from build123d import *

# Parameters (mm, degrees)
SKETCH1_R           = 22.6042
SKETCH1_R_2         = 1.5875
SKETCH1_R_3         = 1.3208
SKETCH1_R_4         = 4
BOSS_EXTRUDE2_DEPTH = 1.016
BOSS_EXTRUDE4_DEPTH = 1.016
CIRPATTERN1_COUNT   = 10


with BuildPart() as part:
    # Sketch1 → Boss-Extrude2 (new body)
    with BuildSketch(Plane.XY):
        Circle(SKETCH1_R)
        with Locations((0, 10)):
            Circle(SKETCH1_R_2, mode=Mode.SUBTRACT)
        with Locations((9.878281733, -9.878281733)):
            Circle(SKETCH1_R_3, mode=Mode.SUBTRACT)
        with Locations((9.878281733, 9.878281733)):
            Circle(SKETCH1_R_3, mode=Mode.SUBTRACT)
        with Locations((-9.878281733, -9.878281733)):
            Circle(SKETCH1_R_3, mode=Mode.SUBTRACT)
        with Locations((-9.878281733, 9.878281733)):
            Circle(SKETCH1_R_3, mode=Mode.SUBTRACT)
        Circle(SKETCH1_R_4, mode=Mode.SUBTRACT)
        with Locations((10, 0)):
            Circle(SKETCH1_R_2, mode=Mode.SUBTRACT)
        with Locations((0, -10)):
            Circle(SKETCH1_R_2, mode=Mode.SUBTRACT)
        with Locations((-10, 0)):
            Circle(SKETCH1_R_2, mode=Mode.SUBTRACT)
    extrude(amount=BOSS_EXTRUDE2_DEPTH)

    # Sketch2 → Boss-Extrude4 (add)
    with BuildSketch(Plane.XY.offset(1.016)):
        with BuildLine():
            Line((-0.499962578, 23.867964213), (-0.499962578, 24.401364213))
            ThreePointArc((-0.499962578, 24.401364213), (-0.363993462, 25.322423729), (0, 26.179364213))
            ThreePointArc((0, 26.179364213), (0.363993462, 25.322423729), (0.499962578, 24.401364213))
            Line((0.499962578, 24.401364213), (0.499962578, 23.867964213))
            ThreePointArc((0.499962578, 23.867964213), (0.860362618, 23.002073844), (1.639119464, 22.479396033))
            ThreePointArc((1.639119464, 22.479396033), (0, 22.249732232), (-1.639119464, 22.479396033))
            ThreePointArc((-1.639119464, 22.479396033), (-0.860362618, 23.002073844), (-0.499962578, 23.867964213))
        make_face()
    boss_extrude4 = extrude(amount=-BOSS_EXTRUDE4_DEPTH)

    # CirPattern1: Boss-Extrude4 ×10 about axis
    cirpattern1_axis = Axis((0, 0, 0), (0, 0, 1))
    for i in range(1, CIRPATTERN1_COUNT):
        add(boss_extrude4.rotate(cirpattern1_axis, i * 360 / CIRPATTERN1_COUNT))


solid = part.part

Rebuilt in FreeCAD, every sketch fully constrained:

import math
import FreeCAD as App
import Part
import Sketcher
from FreeCAD import Vector
Q = App.Units.Quantity

doc = App.newDocument("Part")
body = doc.addObject("PartDesign::Body", "Body")

sketch1 = body.newObject("Sketcher::SketchObject", "Sketch")
sketch1.AttachmentSupport = (doc.getObject("XY_Plane"), [""])
sketch1.MapMode = "FlatFace"
sketch1.addGeometry(Part.Circle(Vector(0, 0, 0), Vector(0, 0, 1), 22.6), False)
sketch1.addGeometry(Part.Circle(Vector(-9.9, -9.9, 0), Vector(0, 0, 1), 1.3), False)
sketch1.addGeometry(Part.Circle(Vector(0, -10, 0), Vector(0, 0, 1), 1.6), False)
sketch1.addGeometry(Part.Circle(Vector(-10, 0, 0), Vector(0, 0, 1), 1.6), False)
sketch1.addGeometry(Part.Circle(Vector(0, 0, 0), Vector(0, 0, 1), 4), False)
sketch1.addGeometry(Part.Circle(Vector(9.9, -9.9, 0), Vector(0, 0, 1), 1.3), False)
sketch1.addGeometry(Part.Circle(Vector(10, 0, 0), Vector(0, 0, 1), 1.6), False)
sketch1.addGeometry(Part.Circle(Vector(-9.9, 9.9, 0), Vector(0, 0, 1), 1.3), False)
sketch1.addGeometry(Part.Circle(Vector(0, 10, 0), Vector(0, 0, 1), 1.6), False)
sketch1.addGeometry(Part.Circle(Vector(9.9, 9.9, 0), Vector(0, 0, 1), 1.3), False)
sketch1.addConstraint(Sketcher.Constraint("Coincident", 0, 3, -1, 1))
sketch1.addConstraint(Sketcher.Constraint("Coincident", 4, 3, -1, 1))
sketch1.addConstraint(Sketcher.Constraint("Equal", 2, 3))
sketch1.addConstraint(Sketcher.Constraint("Equal", 1, 5))
sketch1.addConstraint(Sketcher.Constraint("Equal", 3, 6))
sketch1.addConstraint(Sketcher.Constraint("Equal", 5, 7))
sketch1.addConstraint(Sketcher.Constraint("Equal", 6, 8))
sketch1.addConstraint(Sketcher.Constraint("Equal", 7, 9))
sketch1.addConstraint(Sketcher.Constraint("Symmetric", 3, 3, 6, 3, -1, 1))
sketch1.addConstraint(Sketcher.Constraint("Symmetric", 5, 3, 7, 3, -1, 1))
sketch1.addConstraint(Sketcher.Constraint("Symmetric", 2, 3, 8, 3, -1, 1))
sketch1.addConstraint(Sketcher.Constraint("Symmetric", 1, 3, 9, 3, -1, 1))
sketch1.addConstraint(Sketcher.Constraint("Symmetric", 1, 3, 5, 3, -2))
sketch1.addConstraint(Sketcher.Constraint("PointOnObject", 2, 3, -2))
sketch1.addConstraint(Sketcher.Constraint("PointOnObject", 3, 3, -1))
sketch1.addConstraint(Sketcher.Constraint("Diameter", 1, Q("0.104 in")))
sketch1.addConstraint(Sketcher.Constraint("Diameter", 2, Q("0.125 in")))
sketch1.addConstraint(Sketcher.Constraint("Diameter", 0, 45.2084))
sketch1.addConstraint(Sketcher.Constraint("Diameter", 4, 8.0))
sketch1.addConstraint(Sketcher.Constraint("DistanceY", 2, 3, -1, 1, 10.0))
sketch1.addConstraint(Sketcher.Constraint("DistanceX", 3, 3, -1, 1, 10.0))
sketch1.addConstraint(Sketcher.Constraint("DistanceX", 1, 3, -1, 1, 9.878282))
sketch1.addConstraint(Sketcher.Constraint("DistanceY", 1, 3, -1, 1, 9.878282))
pad1 = body.newObject("PartDesign::Pad", "Pad")
pad1.Profile = sketch1
pad1.Length = Q("0.04 in")

sketch2 = body.newObject("Sketcher::SketchObject", "Sketch001")
sketch2.AttachmentSupport = (doc.getObject("XY_Plane"), [""])
sketch2.MapMode = "FlatFace"
sketch2.AttachmentOffset = App.Placement(Vector(0, 0, 0.04 * 25.4), App.Rotation())
sketch2.addGeometry(Part.LineSegment(Vector(-0.5, 24.4, 0), Vector(-0.5, 23.9, 0)), False)
sketch2.addGeometry(Part.ArcOfCircle(Part.Circle(Vector(-2.1, 24, 0), Vector(0, 0, 1), 1.6), math.radians(-73), math.radians(-6)), False)
sketch2.addGeometry(Part.ArcOfCircle(Part.Circle(Vector(0, 28.2, 0), Vector(0, 0, 1), 6), math.radians(-106), math.radians(-74)), False)
sketch2.addGeometry(Part.ArcOfCircle(Part.Circle(Vector(2.1, 24, 0), Vector(0, 0, 1), 1.6), math.radians(-174), math.radians(-107)), False)
sketch2.addGeometry(Part.LineSegment(Vector(0.5, 23.9, 0), Vector(0.5, 24.4, 0)), False)
sketch2.addGeometry(Part.ArcOfCircle(Part.Circle(Vector(-3.2, 24.3, 0), Vector(0, 0, 1), 3.7), math.radians(1), math.radians(30)), False)
sketch2.addGeometry(Part.ArcOfCircle(Part.Circle(Vector(3.2, 24.3, 0), Vector(0, 0, 1), 3.7), math.radians(150), math.radians(179)), False)
sketch2.addConstraint(Sketcher.Constraint("Coincident", 0, 2, 1, 2))
sketch2.addConstraint(Sketcher.Constraint("Coincident", 1, 1, 2, 1))
sketch2.addConstraint(Sketcher.Constraint("Coincident", 2, 2, 3, 2))
sketch2.addConstraint(Sketcher.Constraint("Coincident", 3, 1, 4, 1))
sketch2.addConstraint(Sketcher.Constraint("Coincident", 4, 2, 5, 1))
sketch2.addConstraint(Sketcher.Constraint("Coincident", 5, 2, 6, 1))
sketch2.addConstraint(Sketcher.Constraint("Coincident", 6, 2, 0, 1))
sketch2.addConstraint(Sketcher.Constraint("Vertical", 0))
sketch2.addConstraint(Sketcher.Constraint("Vertical", 4))
sketch2.addConstraint(Sketcher.Constraint("Equal", 1, 3))
sketch2.addConstraint(Sketcher.Constraint("Equal", 5, 6))
sketch2.addConstraint(Sketcher.Constraint("Symmetric", 1, 3, 3, 3, -2))
sketch2.addConstraint(Sketcher.Constraint("Symmetric", 5, 3, 6, 3, -2))
sketch2.addConstraint(Sketcher.Constraint("PointOnObject", 2, 3, -2))
sketch2.addConstraint(Sketcher.Constraint("Horizontal", 0, 2, 3, 1))
sketch2.addConstraint(Sketcher.Constraint("Radius", 1, Q("0.064 in")))
sketch2.addConstraint(Sketcher.Constraint("DistanceY", 0, 2, 0, 1, Q("0.021 in")))
sketch2.addConstraint(Sketcher.Constraint("DistanceY", 4, 2, 5, 2, Q("0.07 in")))
sketch2.addConstraint(Sketcher.Constraint("Radius", 2, 5.964062))
sketch2.addConstraint(Sketcher.Constraint("Radius", 5, 3.659587))
sketch2.addConstraint(Sketcher.Constraint("DistanceX", 5, 3, 0, 2, 2.659))
sketch2.addConstraint(Sketcher.Constraint("DistanceX", 1, 3, -1, 1, 2.117151))
sketch2.addConstraint(Sketcher.Constraint("DistanceY", -1, 1, 1, 3, 24.033121))
sketch2.addConstraint(Sketcher.Constraint("DistanceX", 1, 1, -1, 1, 1.639119))
pad2 = body.newObject("PartDesign::Pad", "Pad001")
pad2.Profile = sketch2
pad2.Length = Q("0.04 in")
pad2.Reversed = True
doc.recompute()

polarpattern = body.newObject("PartDesign::PolarPattern", "PolarPattern")
polarpattern.Originals = [pad2]
polarpattern.Axis = (doc.getObject("Z_Axis"), [""])
polarpattern.Angle = 360
polarpattern.Occurrences = 10
body.Tip = polarpattern

doc.recompute()
